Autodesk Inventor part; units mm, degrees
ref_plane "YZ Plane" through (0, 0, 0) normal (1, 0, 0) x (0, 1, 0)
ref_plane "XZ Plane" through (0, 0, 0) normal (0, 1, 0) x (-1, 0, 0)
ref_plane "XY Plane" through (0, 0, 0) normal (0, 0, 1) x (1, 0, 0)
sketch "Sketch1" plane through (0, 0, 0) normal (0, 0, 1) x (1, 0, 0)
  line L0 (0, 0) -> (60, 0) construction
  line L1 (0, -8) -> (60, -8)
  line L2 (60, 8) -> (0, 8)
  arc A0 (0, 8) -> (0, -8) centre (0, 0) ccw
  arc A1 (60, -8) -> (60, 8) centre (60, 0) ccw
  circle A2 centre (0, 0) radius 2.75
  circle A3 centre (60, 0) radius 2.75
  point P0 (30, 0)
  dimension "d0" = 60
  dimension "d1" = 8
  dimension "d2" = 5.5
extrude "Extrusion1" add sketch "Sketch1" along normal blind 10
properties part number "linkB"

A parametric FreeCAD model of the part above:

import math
import FreeCAD as App
import Part
import Sketcher
from FreeCAD import Vector

doc = App.newDocument("Part")
params = doc.addObject("Spreadsheet::Sheet", "Params")
for row, (alias, value) in enumerate([
    ("sketch1_radius", "8 mm"),
    ("sketch1_diameter", "5.5 mm"),
    ("sketch1_width", "60 mm"),
    ("pad1_length", "10 mm"),
], start=1):
    params.set(f"A{row}", alias)
    params.set(f"B{row}", "=" + value)
    params.setAlias(f"B{row}", alias)

body = doc.addObject("PartDesign::Body", "Body")

# Sketch on XY plane
sketch1 = body.newObject("Sketcher::SketchObject", "Sketch")
sketch1.AttachmentSupport = (doc.getObject("XY_Plane"), [""])
sketch1.MapMode = "FlatFace"
sketch1.addGeometry([
    Part.ArcOfCircle(Part.Circle(Vector(0, 0, 0), Vector(0, 0, 1), 8), math.radians(90), math.radians(270)),  # 0
    Part.LineSegment(Vector(0, -8, 0), Vector(60, -8, 0)),  # 1
    Part.ArcOfCircle(Part.Circle(Vector(60, 0, 0), Vector(0, 0, 1), 8), math.radians(-90), math.radians(90)),  # 2
    Part.LineSegment(Vector(60, 8, 0), Vector(0, 8, 0)),  # 3
    Part.Circle(Vector(0, 0, 0), Vector(0, 0, 1), 2.8),  # 4
    Part.Circle(Vector(60, 0, 0), Vector(0, 0, 1), 2.8),  # 5
], False)
sketch1.addConstraint([
    Sketcher.Constraint("Tangent", 0, 2, 1, 1),
    Sketcher.Constraint("Tangent", 1, 2, 2, 1),
    Sketcher.Constraint("Tangent", 2, 2, 3, 1),
    Sketcher.Constraint("Tangent", 3, 2, 0, 1),
    Sketcher.Constraint("Horizontal", 1),
    Sketcher.Constraint("Horizontal", 3),
    Sketcher.Constraint("Coincident", 0, 3, -1, 1),
    Sketcher.Constraint("Coincident", 4, 3, -1, 1),
    Sketcher.Constraint("Coincident", 5, 3, 2, 3),
    Sketcher.Constraint("Equal", 4, 5),
    Sketcher.Constraint("Radius", 0, 8.0),
    Sketcher.Constraint("Diameter", 4, 5.5),
    Sketcher.Constraint("DistanceX", 1, 1, 1, 2, 60.0),
])
sketch1.setExpression("Constraints[10]", "Params.sketch1_radius")
sketch1.setExpression("Constraints[11]", "Params.sketch1_diameter")
sketch1.setExpression("Constraints[12]", "Params.sketch1_width")
pad1 = body.newObject("PartDesign::Pad", "Pad")
pad1.Profile = sketch1
pad1.setExpression("Length", "Params.pad1_length")

doc.recompute()
